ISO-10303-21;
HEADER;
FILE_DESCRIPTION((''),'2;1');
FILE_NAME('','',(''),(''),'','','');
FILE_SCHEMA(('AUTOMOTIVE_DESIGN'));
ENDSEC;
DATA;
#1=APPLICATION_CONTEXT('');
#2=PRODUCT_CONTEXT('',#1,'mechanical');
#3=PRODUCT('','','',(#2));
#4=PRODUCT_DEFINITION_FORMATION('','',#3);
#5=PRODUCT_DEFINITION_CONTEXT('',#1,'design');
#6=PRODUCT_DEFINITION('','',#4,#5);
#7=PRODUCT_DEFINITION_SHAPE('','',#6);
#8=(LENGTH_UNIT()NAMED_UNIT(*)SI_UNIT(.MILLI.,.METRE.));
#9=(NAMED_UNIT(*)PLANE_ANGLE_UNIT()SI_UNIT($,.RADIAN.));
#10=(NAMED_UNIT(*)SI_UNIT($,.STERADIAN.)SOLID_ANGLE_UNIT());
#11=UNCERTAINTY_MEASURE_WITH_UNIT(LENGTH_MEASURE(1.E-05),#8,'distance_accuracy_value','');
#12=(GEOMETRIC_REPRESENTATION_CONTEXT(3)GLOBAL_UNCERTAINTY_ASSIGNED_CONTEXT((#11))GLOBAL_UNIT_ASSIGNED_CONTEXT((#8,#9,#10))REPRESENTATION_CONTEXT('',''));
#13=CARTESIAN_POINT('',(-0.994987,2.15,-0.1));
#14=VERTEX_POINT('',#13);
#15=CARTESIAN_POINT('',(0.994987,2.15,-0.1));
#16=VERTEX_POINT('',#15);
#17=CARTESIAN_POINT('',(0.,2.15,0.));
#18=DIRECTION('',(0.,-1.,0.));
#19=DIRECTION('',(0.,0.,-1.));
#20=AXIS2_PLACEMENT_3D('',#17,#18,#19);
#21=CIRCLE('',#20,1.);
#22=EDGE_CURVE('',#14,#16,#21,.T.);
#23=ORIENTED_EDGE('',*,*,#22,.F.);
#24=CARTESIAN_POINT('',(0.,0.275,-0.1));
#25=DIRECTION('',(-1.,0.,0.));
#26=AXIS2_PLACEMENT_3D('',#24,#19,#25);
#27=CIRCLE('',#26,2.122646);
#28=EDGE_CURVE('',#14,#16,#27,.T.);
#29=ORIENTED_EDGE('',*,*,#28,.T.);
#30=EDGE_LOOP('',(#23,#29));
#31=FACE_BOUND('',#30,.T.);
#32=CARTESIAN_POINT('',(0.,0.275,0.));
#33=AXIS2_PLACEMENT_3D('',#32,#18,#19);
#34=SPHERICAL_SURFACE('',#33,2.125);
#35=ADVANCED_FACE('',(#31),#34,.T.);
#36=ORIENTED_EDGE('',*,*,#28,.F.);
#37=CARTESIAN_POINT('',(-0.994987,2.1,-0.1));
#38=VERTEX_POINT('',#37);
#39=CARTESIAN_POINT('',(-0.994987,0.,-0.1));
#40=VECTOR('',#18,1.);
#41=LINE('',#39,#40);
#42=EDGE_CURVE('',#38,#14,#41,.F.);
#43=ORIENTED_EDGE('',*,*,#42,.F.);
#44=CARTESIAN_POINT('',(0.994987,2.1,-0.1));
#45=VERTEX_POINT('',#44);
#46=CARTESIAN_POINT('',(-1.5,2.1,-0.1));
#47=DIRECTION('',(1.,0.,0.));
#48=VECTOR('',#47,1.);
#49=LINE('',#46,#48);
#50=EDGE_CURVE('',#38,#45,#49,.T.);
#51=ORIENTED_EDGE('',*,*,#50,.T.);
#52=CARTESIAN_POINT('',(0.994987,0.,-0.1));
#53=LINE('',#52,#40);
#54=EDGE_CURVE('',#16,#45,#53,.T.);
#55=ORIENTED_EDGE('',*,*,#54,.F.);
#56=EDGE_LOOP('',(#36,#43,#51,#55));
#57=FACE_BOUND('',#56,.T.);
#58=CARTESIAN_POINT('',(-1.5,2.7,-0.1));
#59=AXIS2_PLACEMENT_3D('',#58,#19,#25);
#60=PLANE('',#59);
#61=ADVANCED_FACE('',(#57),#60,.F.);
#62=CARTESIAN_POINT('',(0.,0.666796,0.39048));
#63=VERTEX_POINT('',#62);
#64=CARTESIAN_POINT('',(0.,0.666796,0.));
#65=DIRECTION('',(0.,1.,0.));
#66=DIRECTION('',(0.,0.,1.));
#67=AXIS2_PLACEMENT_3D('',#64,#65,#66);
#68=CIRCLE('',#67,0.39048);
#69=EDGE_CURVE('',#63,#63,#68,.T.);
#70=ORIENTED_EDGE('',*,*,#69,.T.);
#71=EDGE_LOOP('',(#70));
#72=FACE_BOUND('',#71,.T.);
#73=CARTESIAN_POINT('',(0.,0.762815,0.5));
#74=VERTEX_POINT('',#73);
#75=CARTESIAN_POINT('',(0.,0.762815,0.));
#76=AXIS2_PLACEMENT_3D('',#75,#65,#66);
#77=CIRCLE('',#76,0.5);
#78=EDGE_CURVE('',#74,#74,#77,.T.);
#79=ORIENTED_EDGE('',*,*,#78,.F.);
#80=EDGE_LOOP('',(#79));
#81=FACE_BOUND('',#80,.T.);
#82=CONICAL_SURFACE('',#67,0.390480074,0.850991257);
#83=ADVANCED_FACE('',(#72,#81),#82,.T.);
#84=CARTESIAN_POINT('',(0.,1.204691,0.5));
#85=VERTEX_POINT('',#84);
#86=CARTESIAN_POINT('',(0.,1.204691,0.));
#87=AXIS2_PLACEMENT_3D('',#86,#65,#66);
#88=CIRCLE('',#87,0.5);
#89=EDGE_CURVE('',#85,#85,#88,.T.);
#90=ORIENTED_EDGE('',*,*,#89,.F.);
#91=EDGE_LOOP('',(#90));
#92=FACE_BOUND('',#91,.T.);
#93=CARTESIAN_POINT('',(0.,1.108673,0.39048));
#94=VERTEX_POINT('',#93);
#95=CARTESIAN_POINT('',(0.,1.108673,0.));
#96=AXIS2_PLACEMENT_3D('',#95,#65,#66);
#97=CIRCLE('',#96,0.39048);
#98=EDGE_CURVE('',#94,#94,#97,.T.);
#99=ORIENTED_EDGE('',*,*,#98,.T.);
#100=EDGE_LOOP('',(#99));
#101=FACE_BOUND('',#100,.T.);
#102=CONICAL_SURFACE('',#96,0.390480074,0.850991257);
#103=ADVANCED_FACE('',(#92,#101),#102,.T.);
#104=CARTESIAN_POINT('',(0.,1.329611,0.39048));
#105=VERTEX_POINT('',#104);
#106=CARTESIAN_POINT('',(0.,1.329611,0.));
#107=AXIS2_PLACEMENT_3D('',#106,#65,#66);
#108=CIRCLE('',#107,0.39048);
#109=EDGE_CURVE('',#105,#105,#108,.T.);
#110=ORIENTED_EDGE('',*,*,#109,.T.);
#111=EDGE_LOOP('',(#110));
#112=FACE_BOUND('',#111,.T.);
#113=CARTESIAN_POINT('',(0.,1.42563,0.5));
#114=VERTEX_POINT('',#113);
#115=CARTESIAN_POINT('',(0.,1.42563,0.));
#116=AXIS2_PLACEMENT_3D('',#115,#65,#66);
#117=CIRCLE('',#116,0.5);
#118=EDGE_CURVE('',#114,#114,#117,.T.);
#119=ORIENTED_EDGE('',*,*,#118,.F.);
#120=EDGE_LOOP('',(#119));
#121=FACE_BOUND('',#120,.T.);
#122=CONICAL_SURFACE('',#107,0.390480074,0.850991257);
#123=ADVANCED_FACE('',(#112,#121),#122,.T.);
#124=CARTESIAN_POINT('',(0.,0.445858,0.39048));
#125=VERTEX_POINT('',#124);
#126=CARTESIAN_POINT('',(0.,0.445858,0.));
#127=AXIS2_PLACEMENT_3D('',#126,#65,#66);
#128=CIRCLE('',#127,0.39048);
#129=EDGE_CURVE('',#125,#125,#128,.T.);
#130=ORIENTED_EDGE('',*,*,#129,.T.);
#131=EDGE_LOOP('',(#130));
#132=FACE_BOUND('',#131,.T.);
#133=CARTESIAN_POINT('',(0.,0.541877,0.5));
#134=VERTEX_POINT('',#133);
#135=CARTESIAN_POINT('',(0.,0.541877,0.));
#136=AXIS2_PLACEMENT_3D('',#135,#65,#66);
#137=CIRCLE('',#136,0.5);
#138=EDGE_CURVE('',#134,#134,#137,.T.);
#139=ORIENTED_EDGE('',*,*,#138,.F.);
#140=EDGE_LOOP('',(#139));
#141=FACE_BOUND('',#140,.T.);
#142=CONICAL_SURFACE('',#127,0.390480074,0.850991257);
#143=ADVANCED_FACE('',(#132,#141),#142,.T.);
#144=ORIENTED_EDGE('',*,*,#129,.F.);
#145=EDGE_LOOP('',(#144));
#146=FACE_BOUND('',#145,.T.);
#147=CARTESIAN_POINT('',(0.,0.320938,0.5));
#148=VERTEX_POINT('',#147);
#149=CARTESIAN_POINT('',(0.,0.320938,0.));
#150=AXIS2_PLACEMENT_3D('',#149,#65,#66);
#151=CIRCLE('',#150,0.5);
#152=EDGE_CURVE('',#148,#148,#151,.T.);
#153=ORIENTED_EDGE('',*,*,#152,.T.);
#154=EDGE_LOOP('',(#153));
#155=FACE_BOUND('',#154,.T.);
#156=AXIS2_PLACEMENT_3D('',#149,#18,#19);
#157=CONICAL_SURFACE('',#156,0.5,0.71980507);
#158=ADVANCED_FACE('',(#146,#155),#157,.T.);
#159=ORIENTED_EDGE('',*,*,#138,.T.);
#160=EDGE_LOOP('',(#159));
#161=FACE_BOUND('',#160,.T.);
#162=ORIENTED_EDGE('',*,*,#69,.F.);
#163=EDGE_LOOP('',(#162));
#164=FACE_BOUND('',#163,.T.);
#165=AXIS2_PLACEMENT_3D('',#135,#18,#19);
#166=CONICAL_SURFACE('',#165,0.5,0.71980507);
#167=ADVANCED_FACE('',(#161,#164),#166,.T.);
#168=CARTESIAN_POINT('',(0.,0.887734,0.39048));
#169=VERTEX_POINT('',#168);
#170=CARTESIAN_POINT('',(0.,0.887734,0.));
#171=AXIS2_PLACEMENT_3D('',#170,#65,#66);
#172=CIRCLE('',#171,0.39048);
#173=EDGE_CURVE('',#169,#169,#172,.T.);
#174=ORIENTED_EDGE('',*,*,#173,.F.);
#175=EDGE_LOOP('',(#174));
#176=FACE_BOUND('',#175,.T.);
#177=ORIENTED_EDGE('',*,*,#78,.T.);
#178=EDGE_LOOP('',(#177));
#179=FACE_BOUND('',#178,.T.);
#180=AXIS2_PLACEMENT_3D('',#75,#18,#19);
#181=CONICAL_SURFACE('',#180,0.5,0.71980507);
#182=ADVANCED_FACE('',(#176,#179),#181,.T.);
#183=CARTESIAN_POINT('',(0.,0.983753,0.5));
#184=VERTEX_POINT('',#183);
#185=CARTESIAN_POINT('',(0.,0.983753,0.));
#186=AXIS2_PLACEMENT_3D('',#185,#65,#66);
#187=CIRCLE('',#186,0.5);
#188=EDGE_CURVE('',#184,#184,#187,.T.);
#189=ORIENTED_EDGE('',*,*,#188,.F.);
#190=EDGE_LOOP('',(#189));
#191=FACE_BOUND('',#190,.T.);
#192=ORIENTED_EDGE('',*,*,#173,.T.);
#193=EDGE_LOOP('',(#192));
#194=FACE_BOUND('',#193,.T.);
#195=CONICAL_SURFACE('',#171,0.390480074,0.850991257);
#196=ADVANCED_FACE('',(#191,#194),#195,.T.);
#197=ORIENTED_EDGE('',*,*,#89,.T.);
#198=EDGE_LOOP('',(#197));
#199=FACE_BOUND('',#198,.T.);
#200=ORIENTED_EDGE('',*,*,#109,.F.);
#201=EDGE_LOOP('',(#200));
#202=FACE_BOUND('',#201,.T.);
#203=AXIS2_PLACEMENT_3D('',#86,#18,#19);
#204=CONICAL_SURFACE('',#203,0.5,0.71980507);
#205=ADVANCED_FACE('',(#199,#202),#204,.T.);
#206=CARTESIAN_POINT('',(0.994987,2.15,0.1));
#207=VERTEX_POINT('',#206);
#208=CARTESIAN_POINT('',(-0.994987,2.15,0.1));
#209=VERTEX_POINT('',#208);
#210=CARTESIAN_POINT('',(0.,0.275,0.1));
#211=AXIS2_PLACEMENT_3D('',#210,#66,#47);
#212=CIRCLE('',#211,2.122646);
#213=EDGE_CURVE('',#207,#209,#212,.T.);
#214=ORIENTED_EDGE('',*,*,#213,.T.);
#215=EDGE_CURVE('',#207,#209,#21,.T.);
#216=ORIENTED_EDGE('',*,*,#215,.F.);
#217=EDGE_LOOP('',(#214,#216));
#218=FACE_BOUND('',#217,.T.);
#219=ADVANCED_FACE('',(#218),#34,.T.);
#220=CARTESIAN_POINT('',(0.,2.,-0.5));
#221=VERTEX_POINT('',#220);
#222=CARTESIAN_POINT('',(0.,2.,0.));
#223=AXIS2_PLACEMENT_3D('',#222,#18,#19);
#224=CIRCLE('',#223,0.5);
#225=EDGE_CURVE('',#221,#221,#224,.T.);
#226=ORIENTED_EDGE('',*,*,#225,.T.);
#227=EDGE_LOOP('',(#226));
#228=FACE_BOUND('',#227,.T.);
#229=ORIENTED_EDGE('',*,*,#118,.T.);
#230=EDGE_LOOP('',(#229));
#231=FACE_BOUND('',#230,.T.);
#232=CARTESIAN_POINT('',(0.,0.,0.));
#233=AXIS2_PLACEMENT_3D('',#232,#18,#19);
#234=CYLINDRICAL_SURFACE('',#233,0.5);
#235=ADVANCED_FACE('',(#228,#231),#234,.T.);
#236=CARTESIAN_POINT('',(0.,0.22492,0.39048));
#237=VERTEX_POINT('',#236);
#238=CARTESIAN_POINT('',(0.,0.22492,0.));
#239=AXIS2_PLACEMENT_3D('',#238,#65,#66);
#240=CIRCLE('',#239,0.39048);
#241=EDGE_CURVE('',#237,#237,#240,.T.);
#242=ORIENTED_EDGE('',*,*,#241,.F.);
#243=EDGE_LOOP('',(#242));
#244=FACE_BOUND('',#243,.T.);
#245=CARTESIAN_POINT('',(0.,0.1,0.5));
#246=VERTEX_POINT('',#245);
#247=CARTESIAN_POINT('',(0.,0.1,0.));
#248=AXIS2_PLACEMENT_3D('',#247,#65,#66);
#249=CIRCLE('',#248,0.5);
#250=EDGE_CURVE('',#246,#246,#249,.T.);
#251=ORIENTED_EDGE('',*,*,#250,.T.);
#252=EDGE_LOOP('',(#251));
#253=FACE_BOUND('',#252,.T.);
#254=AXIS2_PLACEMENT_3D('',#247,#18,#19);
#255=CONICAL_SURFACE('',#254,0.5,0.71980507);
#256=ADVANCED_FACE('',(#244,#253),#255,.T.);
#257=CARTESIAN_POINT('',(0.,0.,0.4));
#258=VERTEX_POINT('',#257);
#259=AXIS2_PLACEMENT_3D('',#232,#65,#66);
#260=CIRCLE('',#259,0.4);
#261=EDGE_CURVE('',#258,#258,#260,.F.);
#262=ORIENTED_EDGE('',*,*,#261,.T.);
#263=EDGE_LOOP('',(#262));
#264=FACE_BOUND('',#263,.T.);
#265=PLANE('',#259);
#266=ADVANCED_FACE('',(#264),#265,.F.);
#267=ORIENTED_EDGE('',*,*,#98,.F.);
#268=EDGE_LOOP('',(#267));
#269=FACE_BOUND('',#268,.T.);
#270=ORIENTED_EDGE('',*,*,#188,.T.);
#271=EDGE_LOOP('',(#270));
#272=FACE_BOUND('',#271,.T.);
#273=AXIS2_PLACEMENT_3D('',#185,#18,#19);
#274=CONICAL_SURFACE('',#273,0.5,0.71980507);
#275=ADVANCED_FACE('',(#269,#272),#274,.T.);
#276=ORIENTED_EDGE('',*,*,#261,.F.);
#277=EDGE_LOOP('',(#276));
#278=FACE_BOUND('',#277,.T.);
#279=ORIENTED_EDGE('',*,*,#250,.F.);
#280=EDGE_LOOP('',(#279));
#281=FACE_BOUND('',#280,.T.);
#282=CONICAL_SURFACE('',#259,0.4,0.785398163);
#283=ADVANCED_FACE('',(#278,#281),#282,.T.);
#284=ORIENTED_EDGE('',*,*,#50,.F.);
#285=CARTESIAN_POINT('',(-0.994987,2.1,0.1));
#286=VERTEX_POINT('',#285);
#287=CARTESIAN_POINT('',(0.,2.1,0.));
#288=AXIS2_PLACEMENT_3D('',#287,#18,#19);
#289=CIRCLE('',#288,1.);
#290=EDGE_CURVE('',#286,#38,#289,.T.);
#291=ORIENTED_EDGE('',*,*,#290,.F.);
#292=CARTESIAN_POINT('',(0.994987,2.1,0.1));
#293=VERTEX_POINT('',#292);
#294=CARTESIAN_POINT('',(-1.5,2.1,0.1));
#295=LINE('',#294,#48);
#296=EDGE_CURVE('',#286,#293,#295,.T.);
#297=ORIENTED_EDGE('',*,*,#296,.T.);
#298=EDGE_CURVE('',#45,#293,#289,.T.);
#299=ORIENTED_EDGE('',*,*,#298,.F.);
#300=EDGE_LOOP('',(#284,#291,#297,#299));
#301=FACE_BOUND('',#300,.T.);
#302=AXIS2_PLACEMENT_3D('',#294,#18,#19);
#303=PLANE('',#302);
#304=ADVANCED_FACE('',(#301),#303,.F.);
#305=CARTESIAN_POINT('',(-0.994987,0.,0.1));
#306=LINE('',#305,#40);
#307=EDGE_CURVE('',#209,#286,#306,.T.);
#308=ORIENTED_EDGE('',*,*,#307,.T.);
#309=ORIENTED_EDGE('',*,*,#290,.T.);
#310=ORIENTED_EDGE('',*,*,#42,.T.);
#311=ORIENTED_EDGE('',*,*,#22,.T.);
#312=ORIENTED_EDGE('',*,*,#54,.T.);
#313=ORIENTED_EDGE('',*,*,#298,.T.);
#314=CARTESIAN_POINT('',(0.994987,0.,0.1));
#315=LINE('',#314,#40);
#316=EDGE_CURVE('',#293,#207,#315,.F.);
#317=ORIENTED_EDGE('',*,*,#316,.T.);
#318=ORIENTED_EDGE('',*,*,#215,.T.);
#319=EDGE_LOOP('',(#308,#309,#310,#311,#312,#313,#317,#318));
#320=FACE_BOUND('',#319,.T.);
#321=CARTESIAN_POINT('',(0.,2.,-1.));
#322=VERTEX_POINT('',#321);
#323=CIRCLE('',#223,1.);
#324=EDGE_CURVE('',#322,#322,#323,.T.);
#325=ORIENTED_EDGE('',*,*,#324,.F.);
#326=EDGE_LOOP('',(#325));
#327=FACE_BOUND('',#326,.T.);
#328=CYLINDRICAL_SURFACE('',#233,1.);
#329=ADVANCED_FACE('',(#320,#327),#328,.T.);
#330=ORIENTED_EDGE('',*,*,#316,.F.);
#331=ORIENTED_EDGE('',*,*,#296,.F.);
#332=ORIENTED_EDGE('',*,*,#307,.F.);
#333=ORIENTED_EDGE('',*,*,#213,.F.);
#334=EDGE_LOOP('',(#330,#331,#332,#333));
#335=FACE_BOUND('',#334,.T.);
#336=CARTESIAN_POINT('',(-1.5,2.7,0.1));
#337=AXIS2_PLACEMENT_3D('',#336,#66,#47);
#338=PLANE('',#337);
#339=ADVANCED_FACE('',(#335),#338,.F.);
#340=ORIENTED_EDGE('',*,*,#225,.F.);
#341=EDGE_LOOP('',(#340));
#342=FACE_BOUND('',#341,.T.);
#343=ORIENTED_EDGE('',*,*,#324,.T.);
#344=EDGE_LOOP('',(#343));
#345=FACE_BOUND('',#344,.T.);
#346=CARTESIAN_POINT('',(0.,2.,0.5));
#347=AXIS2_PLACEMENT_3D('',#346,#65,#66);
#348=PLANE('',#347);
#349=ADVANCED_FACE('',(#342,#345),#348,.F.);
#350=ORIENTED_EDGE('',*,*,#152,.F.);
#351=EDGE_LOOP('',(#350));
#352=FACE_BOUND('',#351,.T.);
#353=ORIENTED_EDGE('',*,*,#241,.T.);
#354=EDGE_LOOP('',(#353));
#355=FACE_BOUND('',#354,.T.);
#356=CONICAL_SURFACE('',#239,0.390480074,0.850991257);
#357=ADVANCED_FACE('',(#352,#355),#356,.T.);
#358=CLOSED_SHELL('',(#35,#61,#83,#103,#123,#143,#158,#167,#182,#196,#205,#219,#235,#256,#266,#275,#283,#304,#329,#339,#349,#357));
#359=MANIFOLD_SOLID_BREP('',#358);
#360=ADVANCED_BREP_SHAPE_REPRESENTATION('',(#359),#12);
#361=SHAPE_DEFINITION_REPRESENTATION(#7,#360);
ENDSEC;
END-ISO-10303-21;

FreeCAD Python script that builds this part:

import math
import FreeCAD as App
import Part
import Sketcher

V = App.Vector


def edges_at(feature, points):
    """Names of the edges that pass closest to the given points."""
    edges = feature.Shape.Edges
    near = lambda p: min(range(len(edges)), key=lambda i: edges[i].distToShape(Part.Vertex(*p))[0])
    return sorted({f"Edge{near(p) + 1}" for p in points})

doc = App.newDocument("Part")
body = doc.addObject("PartDesign::Body", "Body")

# Sketch on YZ plane
sketch1 = body.newObject("Sketcher::SketchObject", "Sketch")
sketch1.AttachmentSupport = (doc.getObject("YZ_Plane"), [""])
sketch1.MapMode = "FlatFace"
sketch1.addGeometry(Part.LineSegment(V(0, 0.5, 0), V(0, 0, 0)), False)
sketch1.addGeometry(Part.LineSegment(V(0, 0, 0), V(2.4, 0, 0)), False)
sketch1.addGeometry(Part.ArcOfCircle(Part.Circle(V(0.28, 0, 0), V(0, 0, 1), 2.12), math.radians(0), math.radians(28)), False)
sketch1.addGeometry(Part.LineSegment(V(2.15, 1, 0), V(2, 1, 0)), False)
sketch1.addGeometry(Part.LineSegment(V(2, 1, 0), V(2, 0.5, 0)), False)
sketch1.addGeometry(Part.LineSegment(V(2, 0.5, 0), V(0, 0.5, 0)), False)
sketch1.addConstraint(Sketcher.Constraint("Coincident", 0, 2, 1, 1))
sketch1.addConstraint(Sketcher.Constraint("Coincident", 1, 2, 2, 1))
sketch1.addConstraint(Sketcher.Constraint("Coincident", 2, 2, 3, 1))
sketch1.addConstraint(Sketcher.Constraint("Coincident", 3, 2, 4, 1))
sketch1.addConstraint(Sketcher.Constraint("Coincident", 4, 2, 5, 1))
sketch1.addConstraint(Sketcher.Constraint("Coincident", 5, 2, 0, 1))
sketch1.addConstraint(Sketcher.Constraint("Vertical", 0))
sketch1.addConstraint(Sketcher.Constraint("Horizontal", 1))
sketch1.addConstraint(Sketcher.Constraint("Horizontal", 3))
sketch1.addConstraint(Sketcher.Constraint("Vertical", 4))
sketch1.addConstraint(Sketcher.Constraint("Horizontal", 5))
sketch1.addConstraint(Sketcher.Constraint("Coincident", 0, 2, -1, 1))
sketch1.addConstraint(Sketcher.Constraint("PointOnObject", 2, 3, -1))
sketch1.addConstraint(Sketcher.Constraint("Equal", 0, 4))
sketch1.addConstraint(Sketcher.Constraint("DistanceX", 5, 2, 5, 1, 2.0))
sketch1.addConstraint(Sketcher.Constraint("DistanceX", 1, 1, 1, 2, 2.4))
sketch1.addConstraint(Sketcher.Constraint("DistanceY", 0, 2, 0, 1, 0.5))
sketch1.addConstraint(Sketcher.Constraint("Radius", 2, 2.125))
revolution = body.newObject("PartDesign::Revolution", "Revolution")
revolution.Profile = sketch1
revolution.ReferenceAxis = (sketch1, ["H_Axis"])
revolution.Angle = 360

# Sketch on YZ plane
sketch2 = body.newObject("Sketcher::SketchObject", "Sketch001")
sketch2.AttachmentSupport = (doc.getObject("YZ_Plane"), [""])
sketch2.MapMode = "FlatFace"
sketch2.addGeometry(Part.LineSegment(V(2.7, 0.1, 0), V(2.1, 0.1, 0)), False)
sketch2.addGeometry(Part.LineSegment(V(2.1, 0.1, 0), V(2.1, -0.1, 0)), False)
sketch2.addGeometry(Part.LineSegment(V(2.1, -0.1, 0), V(2.7, -0.1, 0)), False)
sketch2.addGeometry(Part.LineSegment(V(2.7, -0.1, 0), V(2.7, 0.1, 0)), False)
sketch2.addConstraint(Sketcher.Constraint("Coincident", 0, 2, 1, 1))
sketch2.addConstraint(Sketcher.Constraint("Coincident", 1, 2, 2, 1))
sketch2.addConstraint(Sketcher.Constraint("Coincident", 2, 2, 3, 1))
sketch2.addConstraint(Sketcher.Constraint("Coincident", 3, 2, 0, 1))
sketch2.addConstraint(Sketcher.Constraint("Horizontal", 0))
sketch2.addConstraint(Sketcher.Constraint("Vertical", 1))
sketch2.addConstraint(Sketcher.Constraint("Horizontal", 2))
sketch2.addConstraint(Sketcher.Constraint("Vertical", 3))
sketch2.addConstraint(Sketcher.Constraint("DistanceX", 0, 2, 0, 1, 0.6))
sketch2.addConstraint(Sketcher.Constraint("DistanceY", 1, 2, 1, 1, 0.2))
sketch2.addConstraint(Sketcher.Constraint("DistanceX", -1, 1, 0, 2, 2.1))
sketch2.addConstraint(Sketcher.Constraint("DistanceY", -1, 1, 0, 2, 0.1))
pocket1 = body.newObject("PartDesign::Pocket", "Pocket")
pocket1.Profile = sketch2
pocket1.Length = 3
pocket1.Midplane = True
doc.recompute()

chamfer = body.newObject("PartDesign::Chamfer", "Chamfer")
chamfer.Base = (pocket1, edges_at(pocket1, [(0, 0, -0.5)]))
chamfer.Size = 0.1

# Sketch on XY plane
sketch3 = body.newObject("Sketcher::SketchObject", "Sketch002")
sketch3.AttachmentSupport = (doc.getObject("XY_Plane"), [""])
sketch3.MapMode = "FlatFace"
sketch3.addGeometry(Part.LineSegment(V(-0.5, 0.1, 0), V(-0.39, 0.22, 0)), False)
sketch3.addGeometry(Part.LineSegment(V(-0.39, 0.22, 0), V(-0.5, 0.32, 0)), False)
sketch3.addGeometry(Part.LineSegment(V(-0.5, 0.32, 0), V(-0.39, 0.45, 0)), False)
sketch3.addGeometry(Part.LineSegment(V(-0.39, 0.45, 0), V(-0.5, 0.54, 0)), False)
sketch3.addGeometry(Part.LineSegment(V(-0.5, 0.54, 0), V(-0.39, 0.67, 0)), False)
sketch3.addGeometry(Part.LineSegment(V(-0.39, 0.67, 0), V(-0.5, 0.76, 0)), False)
sketch3.addGeometry(Part.LineSegment(V(-0.5, 0.76, 0), V(-0.39, 0.89, 0)), False)
sketch3.addGeometry(Part.LineSegment(V(-0.39, 0.89, 0), V(-0.5, 0.98, 0)), False)
sketch3.addGeometry(Part.LineSegment(V(-0.5, 0.98, 0), V(-0.39, 1.11, 0)), False)
sketch3.addGeometry(Part.LineSegment(V(-0.39, 1.11, 0), V(-0.5, 1.2, 0)), False)
sketch3.addGeometry(Part.LineSegment(V(-0.5, 1.2, 0), V(-0.39, 1.33, 0)), False)
sketch3.addGeometry(Part.LineSegment(V(-0.39, 1.33, 0), V(-0.5, 1.43, 0)), False)
sketch3.addGeometry(Part.LineSegment(V(-0.5, 1.43, 0), V(-0.82, 1.43, 0)), False)
sketch3.addGeometry(Part.LineSegment(V(-0.82, 1.43, 0), V(-0.82, 0.1, 0)), False)
sketch3.addGeometry(Part.LineSegment(V(-0.82, 0.1, 0), V(-0.5, 0.1, 0)), False)
sketch3.addConstraint(Sketcher.Constraint("Coincident", 0, 2, 1, 1))
sketch3.addConstraint(Sketcher.Constraint("Coincident", 1, 2, 2, 1))
sketch3.addConstraint(Sketcher.Constraint("Coincident", 2, 2, 3, 1))
sketch3.addConstraint(Sketcher.Constraint("Coincident", 3, 2, 4, 1))
sketch3.addConstraint(Sketcher.Constraint("Coincident", 4, 2, 5, 1))
sketch3.addConstraint(Sketcher.Constraint("Coincident", 5, 2, 6, 1))
sketch3.addConstraint(Sketcher.Constraint("Coincident", 6, 2, 7, 1))
sketch3.addConstraint(Sketcher.Constraint("Coincident", 7, 2, 8, 1))
sketch3.addConstraint(Sketcher.Constraint("Coincident", 8, 2, 9, 1))
sketch3.addConstraint(Sketcher.Constraint("Coincident", 9, 2, 10, 1))
sketch3.addConstraint(Sketcher.Constraint("Coincident", 10, 2, 11, 1))
sketch3.addConstraint(Sketcher.Constraint("Coincident", 11, 2, 12, 1))
sketch3.addConstraint(Sketcher.Constraint("Coincident", 12, 2, 13, 1))
sketch3.addConstraint(Sketcher.Constraint("Coincident", 13, 2, 14, 1))
sketch3.addConstraint(Sketcher.Constraint("Coincident", 14, 2, 0, 1))
sketch3.addConstraint(Sketcher.Constraint("Horizontal", 12))
sketch3.addConstraint(Sketcher.Constraint("Vertical", 13))
sketch3.addConstraint(Sketcher.Constraint("Horizontal", 14))
sketch3.addConstraint(Sketcher.Constraint("Perpendicular", 0, 1))
sketch3.addConstraint(Sketcher.Constraint("Perpendicular", 1, 2))
sketch3.addConstraint(Sketcher.Constraint("Perpendicular", 2, 3))
sketch3.addConstraint(Sketcher.Constraint("Perpendicular", 3, 4))
sketch3.addConstraint(Sketcher.Constraint("Perpendicular", 4, 5))
sketch3.addConstraint(Sketcher.Constraint("Perpendicular", 5, 6))
sketch3.addConstraint(Sketcher.Constraint("Perpendicular", 6, 7))
sketch3.addConstraint(Sketcher.Constraint("Perpendicular", 7, 8))
sketch3.addConstraint(Sketcher.Constraint("Perpendicular", 8, 9))
sketch3.addConstraint(Sketcher.Constraint("Perpendicular", 9, 10))
sketch3.addConstraint(Sketcher.Constraint("Perpendicular", 10, 11))
sketch3.addConstraint(Sketcher.Constraint("Vertical", 0, 2, 2, 2))
sketch3.addConstraint(Sketcher.Constraint("Vertical", 1, 2, 3, 2))
sketch3.addConstraint(Sketcher.Constraint("Vertical", 2, 2, 4, 2))
sketch3.addConstraint(Sketcher.Constraint("Vertical", 3, 2, 5, 2))
sketch3.addConstraint(Sketcher.Constraint("Vertical", 4, 2, 6, 2))
sketch3.addConstraint(Sketcher.Constraint("Vertical", 5, 2, 7, 2))
sketch3.addConstraint(Sketcher.Constraint("Vertical", 6, 2, 8, 2))
sketch3.addConstraint(Sketcher.Constraint("Vertical", 7, 2, 9, 2))
sketch3.addConstraint(Sketcher.Constraint("Vertical", 8, 2, 10, 2))
sketch3.addConstraint(Sketcher.Constraint("Vertical", 9, 2, 11, 2))
sketch3.addConstraint(Sketcher.Constraint("Vertical", 11, 2, 14, 2))
sketch3.addConstraint(Sketcher.Constraint("DistanceX", 1, 2, -1, 1, 0.5))
sketch3.addConstraint(Sketcher.Constraint("DistanceY", -1, 1, 13, 2, 0.1))
sketch3.addConstraint(Sketcher.Constraint("DistanceY", 13, 2, 13, 1, 1.32563))
sketch3.addConstraint(Sketcher.Constraint("Distance", 0, 0.166131))
sketch3.addConstraint(Sketcher.Constraint("DistanceX", 12, 2, 12, 1, 0.322305))
groove = body.newObject("PartDesign::Groove", "Groove")
groove.Profile = sketch3
groove.ReferenceAxis = (sketch3, ["V_Axis"])
groove.Angle = 360

doc.recompute()
